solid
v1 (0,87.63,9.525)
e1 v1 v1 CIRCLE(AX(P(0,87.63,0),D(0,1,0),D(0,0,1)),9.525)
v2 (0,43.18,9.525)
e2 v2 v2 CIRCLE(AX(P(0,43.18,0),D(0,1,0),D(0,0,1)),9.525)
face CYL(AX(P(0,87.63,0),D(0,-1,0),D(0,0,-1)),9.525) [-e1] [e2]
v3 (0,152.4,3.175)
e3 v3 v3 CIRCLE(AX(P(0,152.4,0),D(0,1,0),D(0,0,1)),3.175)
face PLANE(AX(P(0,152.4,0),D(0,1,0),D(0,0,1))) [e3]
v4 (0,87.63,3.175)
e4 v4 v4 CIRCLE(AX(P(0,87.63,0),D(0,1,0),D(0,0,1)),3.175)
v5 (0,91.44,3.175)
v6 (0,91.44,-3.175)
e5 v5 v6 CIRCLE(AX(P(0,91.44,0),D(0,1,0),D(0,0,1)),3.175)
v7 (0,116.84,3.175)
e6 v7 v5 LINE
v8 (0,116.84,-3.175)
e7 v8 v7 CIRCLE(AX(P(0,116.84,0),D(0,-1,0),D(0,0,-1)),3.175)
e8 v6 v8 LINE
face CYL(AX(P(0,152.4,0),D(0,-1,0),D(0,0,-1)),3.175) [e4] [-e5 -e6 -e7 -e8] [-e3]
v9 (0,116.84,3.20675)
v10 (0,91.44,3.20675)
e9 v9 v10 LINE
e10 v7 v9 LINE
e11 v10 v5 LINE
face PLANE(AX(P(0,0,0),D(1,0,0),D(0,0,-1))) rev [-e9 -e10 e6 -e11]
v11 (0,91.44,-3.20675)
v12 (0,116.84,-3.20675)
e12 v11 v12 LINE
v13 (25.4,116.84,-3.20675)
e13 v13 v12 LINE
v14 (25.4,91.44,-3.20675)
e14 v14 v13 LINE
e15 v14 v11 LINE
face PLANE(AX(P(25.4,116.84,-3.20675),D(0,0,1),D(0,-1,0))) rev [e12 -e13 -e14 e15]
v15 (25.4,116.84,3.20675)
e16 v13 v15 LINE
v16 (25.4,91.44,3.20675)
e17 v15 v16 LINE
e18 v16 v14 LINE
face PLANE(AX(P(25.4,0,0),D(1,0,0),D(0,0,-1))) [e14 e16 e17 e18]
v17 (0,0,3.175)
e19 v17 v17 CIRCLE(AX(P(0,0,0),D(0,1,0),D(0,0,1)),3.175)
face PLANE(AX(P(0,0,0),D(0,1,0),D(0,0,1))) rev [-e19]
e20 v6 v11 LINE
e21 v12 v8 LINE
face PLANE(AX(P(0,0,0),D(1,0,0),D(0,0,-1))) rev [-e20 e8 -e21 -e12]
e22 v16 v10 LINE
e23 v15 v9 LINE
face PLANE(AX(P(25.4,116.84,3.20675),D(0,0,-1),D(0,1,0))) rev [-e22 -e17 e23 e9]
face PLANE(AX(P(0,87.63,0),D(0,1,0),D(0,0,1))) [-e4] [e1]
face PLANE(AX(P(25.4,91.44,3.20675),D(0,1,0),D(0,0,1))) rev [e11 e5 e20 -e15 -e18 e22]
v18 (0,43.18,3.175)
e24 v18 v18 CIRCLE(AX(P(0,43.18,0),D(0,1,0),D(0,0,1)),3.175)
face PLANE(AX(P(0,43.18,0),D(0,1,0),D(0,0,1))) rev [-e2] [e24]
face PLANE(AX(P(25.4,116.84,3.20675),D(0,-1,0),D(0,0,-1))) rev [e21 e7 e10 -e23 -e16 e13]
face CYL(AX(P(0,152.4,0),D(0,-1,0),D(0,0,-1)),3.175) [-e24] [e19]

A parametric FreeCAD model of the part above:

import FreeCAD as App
import Part
import Sketcher

V = App.Vector
Q = App.Units.Quantity


def add_polygon(sketch, points):
    """Adds a closed chain of lines whose ends are joined by coincident constraints."""
    first, n = sketch.GeometryCount, len(points)
    for a, b in zip(points, points[1:] + points[:1]):
        sketch.addGeometry(Part.LineSegment(App.Vector(*a, 0), App.Vector(*b, 0)), False)
    for i in range(n):
        sketch.addConstraint(Sketcher.Constraint("Coincident", first + i, 2, first + (i + 1) % n, 1))

doc = App.newDocument("Part")
body = doc.addObject("PartDesign::Body", "Body")

# Sketch on XZ plane
sketch1 = body.newObject("Sketcher::SketchObject", "Sketch")
sketch1.AttachmentSupport = (doc.getObject("XZ_Plane"), [""])
sketch1.MapMode = "FlatFace"
sketch1.addGeometry(Part.Circle(V(0, 0, 0), V(0, 0, 1), 3.175), False)
sketch1.addConstraint([
    Sketcher.Constraint("Coincident", 0, 3, -1, 1),
    Sketcher.Constraint("Diameter", 0, Q("0.25 in")),
])
pad1 = body.newObject("PartDesign::Pad", "Pad")
pad1.Profile = sketch1
pad1.Length = Q("6 in")
pad1.Reversed = True

# Sketch on YZ plane
sketch2 = body.newObject("Sketcher::SketchObject", "Sketch001")
sketch2.AttachmentSupport = (doc.getObject("YZ_Plane"), [""])
sketch2.MapMode = "FlatFace"
add_polygon(sketch2, [(116.84, 3.20675), (91.44, 3.20675), (91.44, -3.20675), (116.84, -3.20675)])  # lines 0-3
sketch2.addConstraint([
    Sketcher.Constraint("Horizontal", 0),
    Sketcher.Constraint("Vertical", 1),
    Sketcher.Constraint("Horizontal", 2),
    Sketcher.Constraint("Vertical", 3),
    Sketcher.Constraint("DistanceX", 0, 2, 0, 1, Q("1 in")),
    Sketcher.Constraint("DistanceX", -1, 1, 0, 2, Q("3.6 in")),
    Sketcher.Constraint("DistanceY", 1, 2, 1, 1, Q("0.2525 in")),
    Sketcher.Constraint("DistanceY", -1, 1, 0, 2, Q("3.20675 mm")),
])
pad2 = body.newObject("PartDesign::Pad", "Pad001")
pad2.Profile = sketch2
pad2.Length = Q("1 in")

# Sketch on XZ plane
sketch3 = body.newObject("Sketcher::SketchObject", "Sketch002")
sketch3.AttachmentSupport = (doc.getObject("XZ_Plane"), [""])
sketch3.MapMode = "FlatFace"
sketch3.AttachmentOffset = App.Placement(V(0, 0, -1.7 * 25.4), App.Rotation())
sketch3.addGeometry(Part.Circle(V(0, 0, 0), V(0, 0, 1), 9.525), False)
sketch3.addConstraint([
    Sketcher.Constraint("Coincident", 0, 3, -1, 1),
    Sketcher.Constraint("Diameter", 0, Q("0.75 in")),
])
pad3 = body.newObject("PartDesign::Pad", "Pad002")
pad3.Profile = sketch3
pad3.Length = Q("1.75 in")
pad3.Reversed = True

doc.recompute()
